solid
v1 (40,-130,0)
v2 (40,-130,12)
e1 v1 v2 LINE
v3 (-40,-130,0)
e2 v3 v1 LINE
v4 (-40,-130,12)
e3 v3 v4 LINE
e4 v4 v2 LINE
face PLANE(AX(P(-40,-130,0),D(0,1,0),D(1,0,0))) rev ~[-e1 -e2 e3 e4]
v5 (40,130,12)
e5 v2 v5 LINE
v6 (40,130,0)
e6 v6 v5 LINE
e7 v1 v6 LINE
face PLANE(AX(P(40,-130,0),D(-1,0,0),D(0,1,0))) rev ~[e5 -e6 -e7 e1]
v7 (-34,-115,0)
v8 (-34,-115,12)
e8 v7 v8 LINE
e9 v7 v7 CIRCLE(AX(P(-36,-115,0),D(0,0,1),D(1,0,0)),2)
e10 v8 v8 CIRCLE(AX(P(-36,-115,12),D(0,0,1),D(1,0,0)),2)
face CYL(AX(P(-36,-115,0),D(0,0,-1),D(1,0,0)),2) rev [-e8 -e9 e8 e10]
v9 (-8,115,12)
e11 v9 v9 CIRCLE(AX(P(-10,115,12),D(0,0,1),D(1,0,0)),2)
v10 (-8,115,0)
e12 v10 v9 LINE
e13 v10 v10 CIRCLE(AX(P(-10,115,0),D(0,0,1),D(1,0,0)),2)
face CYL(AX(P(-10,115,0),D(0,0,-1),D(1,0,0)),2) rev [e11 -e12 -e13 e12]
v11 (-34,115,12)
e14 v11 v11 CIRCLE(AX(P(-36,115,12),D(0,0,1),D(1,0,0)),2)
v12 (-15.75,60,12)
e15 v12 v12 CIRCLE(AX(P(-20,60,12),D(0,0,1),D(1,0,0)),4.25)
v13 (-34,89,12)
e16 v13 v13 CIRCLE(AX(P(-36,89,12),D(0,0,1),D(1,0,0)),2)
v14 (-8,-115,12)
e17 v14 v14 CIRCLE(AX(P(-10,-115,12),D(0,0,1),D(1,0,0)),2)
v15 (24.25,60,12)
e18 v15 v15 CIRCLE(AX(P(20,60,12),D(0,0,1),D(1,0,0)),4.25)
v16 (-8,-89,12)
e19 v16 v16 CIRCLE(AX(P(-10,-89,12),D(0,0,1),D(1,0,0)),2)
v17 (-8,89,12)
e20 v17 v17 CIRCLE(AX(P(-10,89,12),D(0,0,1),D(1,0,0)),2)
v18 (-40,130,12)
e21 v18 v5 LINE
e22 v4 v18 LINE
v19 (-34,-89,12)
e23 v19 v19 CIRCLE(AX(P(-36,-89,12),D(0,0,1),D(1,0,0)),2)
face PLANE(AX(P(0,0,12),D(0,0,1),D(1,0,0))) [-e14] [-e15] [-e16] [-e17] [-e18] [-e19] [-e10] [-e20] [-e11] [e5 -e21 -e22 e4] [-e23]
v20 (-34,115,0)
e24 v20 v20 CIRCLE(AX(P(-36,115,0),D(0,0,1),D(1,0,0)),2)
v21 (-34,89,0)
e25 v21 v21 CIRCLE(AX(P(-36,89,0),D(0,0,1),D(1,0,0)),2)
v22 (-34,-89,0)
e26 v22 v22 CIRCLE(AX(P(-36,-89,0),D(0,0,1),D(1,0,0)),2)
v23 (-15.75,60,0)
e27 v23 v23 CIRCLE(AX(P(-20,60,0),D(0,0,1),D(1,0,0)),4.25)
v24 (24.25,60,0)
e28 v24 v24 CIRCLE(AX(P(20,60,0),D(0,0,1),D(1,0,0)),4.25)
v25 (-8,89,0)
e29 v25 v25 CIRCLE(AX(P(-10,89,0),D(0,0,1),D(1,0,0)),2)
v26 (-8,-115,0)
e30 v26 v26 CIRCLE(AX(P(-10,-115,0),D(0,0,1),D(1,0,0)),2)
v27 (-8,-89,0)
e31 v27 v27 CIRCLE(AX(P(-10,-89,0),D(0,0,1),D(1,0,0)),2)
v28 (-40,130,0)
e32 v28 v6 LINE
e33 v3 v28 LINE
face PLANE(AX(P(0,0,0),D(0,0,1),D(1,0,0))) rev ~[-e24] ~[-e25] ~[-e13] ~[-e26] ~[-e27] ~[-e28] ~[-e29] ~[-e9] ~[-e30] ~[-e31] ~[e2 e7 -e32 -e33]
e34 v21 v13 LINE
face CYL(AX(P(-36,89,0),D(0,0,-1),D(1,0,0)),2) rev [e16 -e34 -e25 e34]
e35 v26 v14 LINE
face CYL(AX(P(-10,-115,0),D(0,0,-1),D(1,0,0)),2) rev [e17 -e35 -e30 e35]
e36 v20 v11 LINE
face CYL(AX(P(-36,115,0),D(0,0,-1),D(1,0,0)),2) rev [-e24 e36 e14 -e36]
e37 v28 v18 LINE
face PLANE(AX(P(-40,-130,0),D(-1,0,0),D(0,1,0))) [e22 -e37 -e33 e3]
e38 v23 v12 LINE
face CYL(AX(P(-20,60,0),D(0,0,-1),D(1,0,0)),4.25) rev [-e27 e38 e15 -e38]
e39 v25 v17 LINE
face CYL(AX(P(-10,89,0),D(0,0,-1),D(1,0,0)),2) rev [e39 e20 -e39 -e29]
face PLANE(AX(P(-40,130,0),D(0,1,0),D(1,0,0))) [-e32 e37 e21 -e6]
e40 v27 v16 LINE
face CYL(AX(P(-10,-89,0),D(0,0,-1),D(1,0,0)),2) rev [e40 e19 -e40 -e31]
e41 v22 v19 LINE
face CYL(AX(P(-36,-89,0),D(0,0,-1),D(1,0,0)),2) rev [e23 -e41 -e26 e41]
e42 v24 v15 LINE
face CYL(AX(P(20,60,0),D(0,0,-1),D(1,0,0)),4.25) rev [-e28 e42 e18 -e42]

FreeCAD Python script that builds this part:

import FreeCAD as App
import Part
import Sketcher

V = App.Vector
Q = App.Units.Quantity

doc = App.newDocument("Part")
body = doc.addObject("PartDesign::Body", "Body")

# Sketch on XY plane
sketch1 = body.newObject("Sketcher::SketchObject", "Sketch")
sketch1.AttachmentSupport = (doc.getObject("XY_Plane"), [""])
sketch1.MapMode = "FlatFace"
sketch1.addGeometry([
    Part.LineSegment(V(-40, 130, 0), V(-40, -130, 0)),  # 0
    Part.LineSegment(V(-40, -130, 0), V(40, -130, 0)),  # 1
    Part.LineSegment(V(40, -130, 0), V(40, 130, 0)),  # 2
    Part.LineSegment(V(40, 130, 0), V(-40, 130, 0)),  # 3
    Part.Circle(V(-36, -115, 0), V(0, 0, 1), 2),  # 4
    Part.Circle(V(-36, -89, 0), V(0, 0, 1), 2),  # 5
    Part.Circle(V(-10, -115, 0), V(0, 0, 1), 2),  # 6
    Part.Circle(V(-10, -89, 0), V(0, 0, 1), 2),  # 7
    Part.Circle(V(-36, 89, 0), V(0, 0, 1), 2),  # 8
    Part.Circle(V(-36, 115, 0), V(0, 0, 1), 2),  # 9
    Part.Circle(V(-20, 60, 0), V(0, 0, 1), 4.2),  # 10
    Part.Circle(V(-10, 89, 0), V(0, 0, 1), 2),  # 11
    Part.Circle(V(-10, 115, 0), V(0, 0, 1), 2),  # 12
    Part.Circle(V(20, 60, 0), V(0, 0, 1), 4.2),  # 13
], False)
sketch1.addConstraint([
    Sketcher.Constraint("Coincident", 0, 2, 1, 1),
    Sketcher.Constraint("Coincident", 1, 2, 2, 1),
    Sketcher.Constraint("Coincident", 2, 2, 3, 1),
    Sketcher.Constraint("Coincident", 3, 2, 0, 1),
    Sketcher.Constraint("Vertical", 0),
    Sketcher.Constraint("Horizontal", 1),
    Sketcher.Constraint("Vertical", 2),
    Sketcher.Constraint("Horizontal", 3),
    Sketcher.Constraint("Equal", 4, 5),
    Sketcher.Constraint("Equal", 5, 6),
    Sketcher.Constraint("Equal", 6, 7),
    Sketcher.Constraint("Equal", 7, 8),
    Sketcher.Constraint("Equal", 8, 9),
    Sketcher.Constraint("Equal", 9, 11),
    Sketcher.Constraint("Equal", 11, 12),
    Sketcher.Constraint("Equal", 10, 13),
    Sketcher.Constraint("Symmetric", 0, 2, 2, 2, -1, 1),
    Sketcher.Constraint("Symmetric", 10, 3, 13, 3, -2),
    Sketcher.Constraint("Symmetric", 5, 3, 8, 3, -1),
    Sketcher.Constraint("Symmetric", 4, 3, 9, 3, -1),
    Sketcher.Constraint("Symmetric", 7, 3, 11, 3, -1),
    Sketcher.Constraint("Symmetric", 6, 3, 12, 3, -1),
    Sketcher.Constraint("Horizontal", 4, 3, 6, 3),
    Sketcher.Constraint("Horizontal", 5, 3, 7, 3),
    Sketcher.Constraint("Vertical", 4, 3, 5, 3),
    Sketcher.Constraint("Vertical", 6, 3, 7, 3),
    Sketcher.Constraint("Diameter", 4, Q("4 mm")),
    Sketcher.Constraint("Diameter", 10, Q("8.5 mm")),
    Sketcher.Constraint("DistanceX", 1, 1, 1, 2, Q("80 mm")),
    Sketcher.Constraint("DistanceY", 0, 2, 0, 1, Q("260 mm")),
    Sketcher.Constraint("DistanceX", 4, 3, -1, 1, Q("36 mm")),
    Sketcher.Constraint("DistanceY", 4, 3, -1, 1, Q("115 mm")),
    Sketcher.Constraint("DistanceY", 5, 3, -1, 1, Q("89 mm")),
    Sketcher.Constraint("DistanceX", 6, 3, -1, 1, Q("10 mm")),
    Sketcher.Constraint("DistanceX", 10, 3, -1, 1, Q("20 mm")),
    Sketcher.Constraint("DistanceY", -1, 1, 10, 3, Q("60 mm")),
])
pad1 = body.newObject("PartDesign::Pad", "Pad")
pad1.Profile = sketch1
pad1.Length = 12

doc.recompute()
